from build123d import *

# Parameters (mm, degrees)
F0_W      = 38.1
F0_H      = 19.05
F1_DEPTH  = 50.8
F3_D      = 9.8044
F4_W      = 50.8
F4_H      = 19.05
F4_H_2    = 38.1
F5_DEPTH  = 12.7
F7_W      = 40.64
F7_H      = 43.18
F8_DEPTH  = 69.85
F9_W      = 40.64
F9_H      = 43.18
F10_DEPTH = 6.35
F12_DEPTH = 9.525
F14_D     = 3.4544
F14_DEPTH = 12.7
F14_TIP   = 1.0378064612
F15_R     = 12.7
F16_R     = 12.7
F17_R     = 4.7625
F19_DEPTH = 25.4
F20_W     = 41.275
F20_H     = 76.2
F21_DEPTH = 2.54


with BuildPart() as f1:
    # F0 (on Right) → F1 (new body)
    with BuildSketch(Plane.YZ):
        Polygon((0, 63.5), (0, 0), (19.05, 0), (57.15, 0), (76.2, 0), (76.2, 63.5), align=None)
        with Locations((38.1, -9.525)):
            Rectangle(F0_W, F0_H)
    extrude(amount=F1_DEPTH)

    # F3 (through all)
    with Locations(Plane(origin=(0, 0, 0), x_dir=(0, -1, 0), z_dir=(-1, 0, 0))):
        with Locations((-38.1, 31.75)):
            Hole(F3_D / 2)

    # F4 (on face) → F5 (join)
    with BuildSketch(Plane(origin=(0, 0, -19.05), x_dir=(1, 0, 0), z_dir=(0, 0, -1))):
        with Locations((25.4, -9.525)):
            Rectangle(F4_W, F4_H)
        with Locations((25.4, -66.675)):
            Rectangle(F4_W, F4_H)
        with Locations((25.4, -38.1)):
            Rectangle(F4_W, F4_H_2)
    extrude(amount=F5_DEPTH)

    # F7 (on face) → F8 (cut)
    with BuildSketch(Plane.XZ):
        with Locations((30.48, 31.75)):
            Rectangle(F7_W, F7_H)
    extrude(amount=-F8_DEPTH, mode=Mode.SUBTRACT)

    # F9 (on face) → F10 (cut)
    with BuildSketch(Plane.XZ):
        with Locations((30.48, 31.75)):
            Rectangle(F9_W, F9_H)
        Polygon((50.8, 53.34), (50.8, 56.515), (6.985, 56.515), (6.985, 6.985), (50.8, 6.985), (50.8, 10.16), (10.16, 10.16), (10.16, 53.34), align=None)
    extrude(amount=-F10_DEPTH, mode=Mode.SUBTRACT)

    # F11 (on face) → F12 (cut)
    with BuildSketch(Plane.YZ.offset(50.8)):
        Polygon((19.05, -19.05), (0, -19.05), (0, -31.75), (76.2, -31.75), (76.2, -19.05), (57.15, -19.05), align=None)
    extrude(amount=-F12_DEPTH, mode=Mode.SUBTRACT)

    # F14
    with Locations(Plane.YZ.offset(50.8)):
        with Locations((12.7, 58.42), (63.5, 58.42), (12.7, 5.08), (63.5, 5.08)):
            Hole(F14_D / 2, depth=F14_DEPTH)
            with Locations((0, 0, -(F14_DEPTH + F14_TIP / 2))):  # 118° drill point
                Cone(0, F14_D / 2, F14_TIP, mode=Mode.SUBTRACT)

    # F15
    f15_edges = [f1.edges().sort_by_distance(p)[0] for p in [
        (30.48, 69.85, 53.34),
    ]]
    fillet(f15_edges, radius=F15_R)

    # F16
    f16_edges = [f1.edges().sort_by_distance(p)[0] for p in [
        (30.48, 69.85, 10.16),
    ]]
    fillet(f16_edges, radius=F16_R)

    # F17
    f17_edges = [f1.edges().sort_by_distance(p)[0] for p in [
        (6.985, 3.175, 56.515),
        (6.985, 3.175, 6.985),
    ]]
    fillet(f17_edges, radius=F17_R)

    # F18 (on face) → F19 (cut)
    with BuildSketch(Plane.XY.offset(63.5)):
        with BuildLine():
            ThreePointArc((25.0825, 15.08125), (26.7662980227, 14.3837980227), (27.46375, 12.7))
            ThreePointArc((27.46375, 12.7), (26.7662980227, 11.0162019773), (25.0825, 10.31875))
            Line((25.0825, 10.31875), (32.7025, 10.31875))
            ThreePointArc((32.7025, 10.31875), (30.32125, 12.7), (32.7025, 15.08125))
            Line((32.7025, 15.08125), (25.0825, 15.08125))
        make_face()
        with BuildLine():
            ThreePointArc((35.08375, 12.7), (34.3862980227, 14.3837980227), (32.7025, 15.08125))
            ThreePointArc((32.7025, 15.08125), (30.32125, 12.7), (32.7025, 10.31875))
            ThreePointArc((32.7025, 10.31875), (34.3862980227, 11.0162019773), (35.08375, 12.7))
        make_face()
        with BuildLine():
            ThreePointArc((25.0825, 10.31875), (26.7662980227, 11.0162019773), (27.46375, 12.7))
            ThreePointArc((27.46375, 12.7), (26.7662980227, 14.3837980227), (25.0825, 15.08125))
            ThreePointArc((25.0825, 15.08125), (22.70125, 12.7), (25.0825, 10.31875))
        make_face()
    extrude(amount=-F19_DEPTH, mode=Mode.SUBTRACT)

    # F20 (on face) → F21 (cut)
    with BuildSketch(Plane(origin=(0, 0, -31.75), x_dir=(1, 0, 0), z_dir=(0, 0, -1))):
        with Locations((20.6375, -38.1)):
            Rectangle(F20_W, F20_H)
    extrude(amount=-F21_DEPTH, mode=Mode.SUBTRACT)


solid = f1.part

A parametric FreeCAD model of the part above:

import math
import FreeCAD as App
import Part
import Sketcher
from FreeCAD import Vector
Q = App.Units.Quantity


def edges_at(feature, points):
    """Names of the edges that pass closest to the given points."""
    edges = feature.Shape.Edges
    near = lambda p: min(range(len(edges)), key=lambda i: edges[i].distToShape(Part.Vertex(*p))[0])
    return sorted({f"Edge{near(p) + 1}" for p in points})

doc = App.newDocument("Part")
body = doc.addObject("PartDesign::Body", "Body")

# Sketch on YZ plane
sketch1 = doc.addObject("Sketcher::SketchObject", "Sketch")
body.addObject(sketch1)
sketch1.AttachmentSupport = (doc.YZ_Plane, [""])
sketch1.MapMode = "FlatFace"
sketch1.addGeometry(Part.LineSegment(Vector(0, 64, 0), Vector(0, 0, 0)), False)
sketch1.addGeometry(Part.LineSegment(Vector(0, 0, 0), Vector(19, 0, 0)), False)
sketch1.addGeometry(Part.LineSegment(Vector(19, 0, 0), Vector(19, -19, 0)), False)
sketch1.addGeometry(Part.LineSegment(Vector(19, -19, 0), Vector(57, -19, 0)), False)
sketch1.addGeometry(Part.LineSegment(Vector(57, -19, 0), Vector(57, 0, 0)), False)
sketch1.addGeometry(Part.LineSegment(Vector(57, 0, 0), Vector(76, 0, 0)), False)
sketch1.addGeometry(Part.LineSegment(Vector(76, 0, 0), Vector(76, 64, 0)), False)
sketch1.addGeometry(Part.LineSegment(Vector(76, 64, 0), Vector(0, 64, 0)), False)
sketch1.addConstraint(Sketcher.Constraint("Coincident", 0, 2, 1, 1))
sketch1.addConstraint(Sketcher.Constraint("Coincident", 1, 2, 2, 1))
sketch1.addConstraint(Sketcher.Constraint("Coincident", 2, 2, 3, 1))
sketch1.addConstraint(Sketcher.Constraint("Coincident", 3, 2, 4, 1))
sketch1.addConstraint(Sketcher.Constraint("Coincident", 4, 2, 5, 1))
sketch1.addConstraint(Sketcher.Constraint("Coincident", 5, 2, 6, 1))
sketch1.addConstraint(Sketcher.Constraint("Coincident", 6, 2, 7, 1))
sketch1.addConstraint(Sketcher.Constraint("Coincident", 7, 2, 0, 1))
sketch1.addConstraint(Sketcher.Constraint("Vertical", 0))
sketch1.addConstraint(Sketcher.Constraint("Horizontal", 1))
sketch1.addConstraint(Sketcher.Constraint("Vertical", 2))
sketch1.addConstraint(Sketcher.Constraint("Horizontal", 3))
sketch1.addConstraint(Sketcher.Constraint("Vertical", 4))
sketch1.addConstraint(Sketcher.Constraint("Horizontal", 5))
sketch1.addConstraint(Sketcher.Constraint("Vertical", 6))
sketch1.addConstraint(Sketcher.Constraint("Horizontal", 7))
sketch1.addConstraint(Sketcher.Constraint("Coincident", 0, 2, -1, 1))
sketch1.addConstraint(Sketcher.Constraint("PointOnObject", 4, 2, -1))
sketch1.addConstraint(Sketcher.Constraint("Equal", 1, 5))
sketch1.addConstraint(Sketcher.Constraint("Equal", 5, 2))
sketch1.addConstraint(Sketcher.Constraint("DistanceX", 7, 2, 7, 1, Q("3 in")))
sketch1.addConstraint(Sketcher.Constraint("DistanceX", 3, 1, 3, 2, Q("1.5 in")))
sketch1.addConstraint(Sketcher.Constraint("DistanceY", 0, 2, 0, 1, Q("2.5 in")))
pad1 = doc.addObject("PartDesign::Pad", "Pad")
body.addObject(pad1)
pad1.Profile = sketch1
pad1.Length = Q("2 in")

# Sketch on YZ plane
sketch2 = doc.addObject("Sketcher::SketchObject", "Sketch001")
body.addObject(sketch2)
sketch2.AttachmentSupport = (doc.YZ_Plane, [""])
sketch2.MapMode = "FlatFace"
sketch2.addGeometry(Part.Circle(Vector(38.1, 31.8, 0), Vector(0, 0, 1), 4.9), False)
sketch2.addConstraint(Sketcher.Constraint("Diameter", 0, Q("0.386 in")))
sketch2.addConstraint(Sketcher.Constraint("DistanceX", -1, 1, 0, 3, Q("1.5 in")))
sketch2.addConstraint(Sketcher.Constraint("DistanceY", -1, 1, 0, 3, Q("1.25 in")))
doc.recompute()
hole = doc.addObject("PartDesign::Hole", "Hole")
body.addObject(hole)
hole.Profile = sketch2
hole.ThreadType = "None"
hole.Diameter = Q("0.386 in")
hole.DepthType = "ThroughAll"
hole.Reversed = True

# Sketch on XY plane
sketch3 = doc.addObject("Sketcher::SketchObject", "Sketch002")
body.addObject(sketch3)
sketch3.AttachmentSupport = (doc.XY_Plane, [""])
sketch3.MapMode = "FlatFace"
sketch3.AttachmentOffset = App.Placement(Vector(0, 0, -0.75 * 25.4), App.Rotation())
sketch3.addGeometry(Part.LineSegment(Vector(0, 0, 0), Vector(0, 76, 0)), False)
sketch3.addGeometry(Part.LineSegment(Vector(0, 76, 0), Vector(51, 76, 0)), False)
sketch3.addGeometry(Part.LineSegment(Vector(51, 76, 0), Vector(51, 0, 0)), False)
sketch3.addGeometry(Part.LineSegment(Vector(51, 0, 0), Vector(0, 0, 0)), False)
sketch3.addConstraint(Sketcher.Constraint("Coincident", 0, 2, 1, 1))
sketch3.addConstraint(Sketcher.Constraint("Coincident", 1, 2, 2, 1))
sketch3.addConstraint(Sketcher.Constraint("Coincident", 2, 2, 3, 1))
sketch3.addConstraint(Sketcher.Constraint("Coincident", 3, 2, 0, 1))
sketch3.addConstraint(Sketcher.Constraint("Vertical", 0))
sketch3.addConstraint(Sketcher.Constraint("Horizontal", 1))
sketch3.addConstraint(Sketcher.Constraint("Vertical", 2))
sketch3.addConstraint(Sketcher.Constraint("Horizontal", 3))
sketch3.addConstraint(Sketcher.Constraint("Coincident", 3, 2, -1, 1))
sketch3.addConstraint(Sketcher.Constraint("DistanceX", 1, 1, 1, 2, Q("2 in")))
sketch3.addConstraint(Sketcher.Constraint("DistanceY", 0, 1, 0, 2, Q("3 in")))
pad2 = doc.addObject("PartDesign::Pad", "Pad001")
body.addObject(pad2)
pad2.Profile = sketch3
pad2.Length = Q("0.5 in")
pad2.Reversed = True

# Sketch on XZ plane
sketch4 = doc.addObject("Sketcher::SketchObject", "Sketch003")
body.addObject(sketch4)
sketch4.AttachmentSupport = (doc.XZ_Plane, [""])
sketch4.MapMode = "FlatFace"
sketch4.addGeometry(Part.LineSegment(Vector(10, 53, 0), Vector(10, 10, 0)), False)
sketch4.addGeometry(Part.LineSegment(Vector(10, 10, 0), Vector(51, 10, 0)), False)
sketch4.addGeometry(Part.LineSegment(Vector(51, 10, 0), Vector(51, 53, 0)), False)
sketch4.addGeometry(Part.LineSegment(Vector(51, 53, 0), Vector(10, 53, 0)), False)
sketch4.addConstraint(Sketcher.Constraint("Coincident", 0, 2, 1, 1))
sketch4.addConstraint(Sketcher.Constraint("Coincident", 1, 2, 2, 1))
sketch4.addConstraint(Sketcher.Constraint("Coincident", 2, 2, 3, 1))
sketch4.addConstraint(Sketcher.Constraint("Coincident", 3, 2, 0, 1))
sketch4.addConstraint(Sketcher.Constraint("Vertical", 0))
sketch4.addConstraint(Sketcher.Constraint("Horizontal", 1))
sketch4.addConstraint(Sketcher.Constraint("Vertical", 2))
sketch4.addConstraint(Sketcher.Constraint("Horizontal", 3))
sketch4.addConstraint(Sketcher.Constraint("DistanceX", 1, 1, 1, 2, Q("1.6 in")))
sketch4.addConstraint(Sketcher.Constraint("DistanceY", 0, 2, 0, 1, Q("1.7 in")))
sketch4.addConstraint(Sketcher.Constraint("DistanceX", -1, 1, 1, 2, Q("2 in")))
sketch4.addConstraint(Sketcher.Constraint("DistanceY", -1, 1, 0, 2, Q("0.4 in")))
pocket1 = doc.addObject("PartDesign::Pocket", "Pocket")
body.addObject(pocket1)
pocket1.Profile = sketch4
pocket1.Length = Q("2.75 in")

# Sketch on XZ plane
sketch5 = doc.addObject("Sketcher::SketchObject", "Sketch004")
body.addObject(sketch5)
sketch5.AttachmentSupport = (doc.XZ_Plane, [""])
sketch5.MapMode = "FlatFace"
sketch5.addGeometry(Part.LineSegment(Vector(51, 57, 0), Vector(7, 57, 0)), False)
sketch5.addGeometry(Part.LineSegment(Vector(7, 57, 0), Vector(7, 7, 0)), False)
sketch5.addGeometry(Part.LineSegment(Vector(7, 7, 0), Vector(51, 7, 0)), False)
sketch5.addGeometry(Part.LineSegment(Vector(51, 7, 0), Vector(51, 57, 0)), False)
sketch5.addConstraint(Sketcher.Constraint("Coincident", 0, 2, 1, 1))
sketch5.addConstraint(Sketcher.Constraint("Coincident", 1, 2, 2, 1))
sketch5.addConstraint(Sketcher.Constraint("Coincident", 2, 2, 3, 1))
sketch5.addConstraint(Sketcher.Constraint("Coincident", 3, 2, 0, 1))
sketch5.addConstraint(Sketcher.Constraint("Horizontal", 0))
sketch5.addConstraint(Sketcher.Constraint("Vertical", 1))
sketch5.addConstraint(Sketcher.Constraint("Horizontal", 2))
sketch5.addConstraint(Sketcher.Constraint("Vertical", 3))
sketch5.addConstraint(Sketcher.Constraint("DistanceX", -1, 1, 2, 2, Q("2 in")))
sketch5.addConstraint(Sketcher.Constraint("DistanceY", 1, 2, 1, 1, Q("1.95 in")))
sketch5.addConstraint(Sketcher.Constraint("DistanceX", 0, 2, 0, 1, Q("1.725 in")))
sketch5.addConstraint(Sketcher.Constraint("DistanceY", -1, 1, 0, 2, Q("2.225 in")))
pocket2 = doc.addObject("PartDesign::Pocket", "Pocket001")
body.addObject(pocket2)
pocket2.Profile = sketch5
pocket2.Length = Q("0.25 in")

# Sketch on YZ plane
sketch6 = doc.addObject("Sketcher::SketchObject", "Sketch005")
body.addObject(sketch6)
sketch6.AttachmentSupport = (doc.YZ_Plane, [""])
sketch6.MapMode = "FlatFace"
sketch6.AttachmentOffset = App.Placement(Vector(0, 0, 2 * 25.4), App.Rotation())
sketch6.addGeometry(Part.LineSegment(Vector(0, -19, 0), Vector(0, -32, 0)), False)
sketch6.addGeometry(Part.LineSegment(Vector(0, -32, 0), Vector(76, -32, 0)), False)
sketch6.addGeometry(Part.LineSegment(Vector(76, -32, 0), Vector(76, -19, 0)), False)
sketch6.addGeometry(Part.LineSegment(Vector(76, -19, 0), Vector(0, -19, 0)), False)
sketch6.addConstraint(Sketcher.Constraint("Coincident", 0, 2, 1, 1))
sketch6.addConstraint(Sketcher.Constraint("Coincident", 1, 2, 2, 1))
sketch6.addConstraint(Sketcher.Constraint("Coincident", 2, 2, 3, 1))
sketch6.addConstraint(Sketcher.Constraint("Coincident", 3, 2, 0, 1))
sketch6.addConstraint(Sketcher.Constraint("Vertical", 0))
sketch6.addConstraint(Sketcher.Constraint("Horizontal", 1))
sketch6.addConstraint(Sketcher.Constraint("Vertical", 2))
sketch6.addConstraint(Sketcher.Constraint("Horizontal", 3))
sketch6.addConstraint(Sketcher.Constraint("PointOnObject", 0, 2, -2))
sketch6.addConstraint(Sketcher.Constraint("DistanceX", 1, 1, 1, 2, Q("3 in")))
sketch6.addConstraint(Sketcher.Constraint("DistanceY", 0, 2, 0, 1, Q("0.5 in")))
sketch6.addConstraint(Sketcher.Constraint("DistanceY", 0, 2, -1, 1, Q("1.25 in")))
pocket3 = doc.addObject("PartDesign::Pocket", "Pocket002")
body.addObject(pocket3)
pocket3.Profile = sketch6
pocket3.Length = Q("0.375 in")

# Sketch on YZ plane
sketch7 = doc.addObject("Sketcher::SketchObject", "Sketch006")
body.addObject(sketch7)
sketch7.AttachmentSupport = (doc.YZ_Plane, [""])
sketch7.MapMode = "FlatFace"
sketch7.AttachmentOffset = App.Placement(Vector(0, 0, 2 * 25.4), App.Rotation())
sketch7.addGeometry(Part.Circle(Vector(12.7, 58.4, 0), Vector(0, 0, 1), 1.7), False)
sketch7.addGeometry(Part.Circle(Vector(63.5, 58.4, 0), Vector(0, 0, 1), 1.7), False)
sketch7.addGeometry(Part.Circle(Vector(12.7, 5.1, 0), Vector(0, 0, 1), 1.7), False)
sketch7.addGeometry(Part.Circle(Vector(63.5, 5.1, 0), Vector(0, 0, 1), 1.7), False)
sketch7.addConstraint(Sketcher.Constraint("Equal", 0, 1))
sketch7.addConstraint(Sketcher.Constraint("Equal", 1, 2))
sketch7.addConstraint(Sketcher.Constraint("Equal", 2, 3))
sketch7.addConstraint(Sketcher.Constraint("Horizontal", 0, 3, 1, 3))
sketch7.addConstraint(Sketcher.Constraint("Horizontal", 2, 3, 3, 3))
sketch7.addConstraint(Sketcher.Constraint("Vertical", 0, 3, 2, 3))
sketch7.addConstraint(Sketcher.Constraint("Vertical", 1, 3, 3, 3))
sketch7.addConstraint(Sketcher.Constraint("Diameter", 0, Q("0.136 in")))
sketch7.addConstraint(Sketcher.Constraint("DistanceX", 0, 3, 1, 3, Q("2 in")))
sketch7.addConstraint(Sketcher.Constraint("DistanceX", -1, 1, 0, 3, Q("0.5 in")))
sketch7.addConstraint(Sketcher.Constraint("DistanceY", -1, 1, 0, 3, Q("2.3 in")))
sketch7.addConstraint(Sketcher.Constraint("DistanceY", -1, 1, 2, 3, Q("0.2 in")))
doc.recompute()
hole2 = doc.addObject("PartDesign::Hole", "Hole001")
body.addObject(hole2)
hole2.Profile = sketch7
hole2.ThreadType = "None"
hole2.Diameter = Q("0.136 in")
hole2.DepthType = "Dimension"
hole2.Depth = Q("0.5 in")
hole2.DrillPoint = "Angled"
hole2.DrillPointAngle = 118
doc.recompute()

fillet = doc.addObject("PartDesign::Fillet", "Fillet")
body.addObject(fillet)
fillet.Base = (hole2, edges_at(hole2, [(30.48, 69.85, 53.34)]))
fillet.Radius = Q("0.5 in")
doc.recompute()

fillet2 = doc.addObject("PartDesign::Fillet", "Fillet001")
body.addObject(fillet2)
fillet2.Base = (fillet, edges_at(fillet, [(30.48, 69.85, 10.16)]))
fillet2.Radius = Q("0.5 in")
doc.recompute()

fillet3 = doc.addObject("PartDesign::Fillet", "Fillet002")
body.addObject(fillet3)
fillet3.Base = (fillet2, edges_at(fillet2, [(6.985, 3.175, 56.515), (6.985, 3.175, 6.985)]))
fillet3.Radius = Q("0.1875 in")

# Sketch on XY plane
sketch8 = doc.addObject("Sketcher::SketchObject", "Sketch007")
body.addObject(sketch8)
sketch8.AttachmentSupport = (doc.XY_Plane, [""])
sketch8.MapMode = "FlatFace"
sketch8.AttachmentOffset = App.Placement(Vector(0, 0, 2.5 * 25.4), App.Rotation())
sketch8.addGeometry(Part.LineSegment(Vector(25.1, 10.3, 0), Vector(32.7, 10.3, 0)), False)
sketch8.addGeometry(Part.ArcOfCircle(Part.Circle(Vector(32.7, 12.7, 0), Vector(0, 0, 1), 2.4), math.radians(-90), math.radians(90)), False)
sketch8.addGeometry(Part.LineSegment(Vector(32.7, 15.1, 0), Vector(25.1, 15.1, 0)), False)
sketch8.addGeometry(Part.ArcOfCircle(Part.Circle(Vector(25.1, 12.7, 0), Vector(0, 0, 1), 2.4), math.radians(90), math.radians(270)), False)
sketch8.addConstraint(Sketcher.Constraint("Tangent", 0, 2, 1, 1))
sketch8.addConstraint(Sketcher.Constraint("Tangent", 1, 2, 2, 1))
sketch8.addConstraint(Sketcher.Constraint("Tangent", 2, 2, 3, 1))
sketch8.addConstraint(Sketcher.Constraint("Tangent", 3, 2, 0, 1))
sketch8.addConstraint(Sketcher.Constraint("Horizontal", 0))
sketch8.addConstraint(Sketcher.Constraint("Horizontal", 2))
sketch8.addConstraint(Sketcher.Constraint("DistanceX", 0, 1, 0, 2, Q("0.3 in")))
sketch8.addConstraint(Sketcher.Constraint("Radius", 1, Q("0.09375 in")))
sketch8.addConstraint(Sketcher.Constraint("DistanceY", -1, 1, 1, 3, Q("0.5 in")))
sketch8.addConstraint(Sketcher.Constraint("DistanceX", -1, 1, 1, 3, Q("1.2875 in")))
pocket4 = doc.addObject("PartDesign::Pocket", "Pocket003")
body.addObject(pocket4)
pocket4.Profile = sketch8
pocket4.Length = Q("1 in")

# Sketch on XY plane
sketch9 = doc.addObject("Sketcher::SketchObject", "Sketch008")
body.addObject(sketch9)
sketch9.AttachmentSupport = (doc.XY_Plane, [""])
sketch9.MapMode = "FlatFace"
sketch9.AttachmentOffset = App.Placement(Vector(0, 0, -1.25 * 25.4), App.Rotation())
sketch9.addGeometry(Part.LineSegment(Vector(0, 0, 0), Vector(0, 76, 0)), False)
sketch9.addGeometry(Part.LineSegment(Vector(0, 76, 0), Vector(41, 76, 0)), False)
sketch9.addGeometry(Part.LineSegment(Vector(41, 76, 0), Vector(41, 0, 0)), False)
sketch9.addGeometry(Part.LineSegment(Vector(41, 0, 0), Vector(0, 0, 0)), False)
sketch9.addConstraint(Sketcher.Constraint("Coincident", 0, 2, 1, 1))
sketch9.addConstraint(Sketcher.Constraint("Coincident", 1, 2, 2, 1))
sketch9.addConstraint(Sketcher.Constraint("Coincident", 2, 2, 3, 1))
sketch9.addConstraint(Sketcher.Constraint("Coincident", 3, 2, 0, 1))
sketch9.addConstraint(Sketcher.Constraint("Vertical", 0))
sketch9.addConstraint(Sketcher.Constraint("Horizontal", 1))
sketch9.addConstraint(Sketcher.Constraint("Vertical", 2))
sketch9.addConstraint(Sketcher.Constraint("Horizontal", 3))
sketch9.addConstraint(Sketcher.Constraint("Coincident", 3, 2, -1, 1))
sketch9.addConstraint(Sketcher.Constraint("DistanceY", 0, 1, 0, 2, Q("3 in")))
sketch9.addConstraint(Sketcher.Constraint("DistanceX", 1, 1, 1, 2, Q("1.625 in")))
pocket5 = doc.addObject("PartDesign::Pocket", "Pocket004")
body.addObject(pocket5)
pocket5.Profile = sketch9
pocket5.Length = Q("0.1 in")
pocket5.Reversed = True

doc.recompute()
